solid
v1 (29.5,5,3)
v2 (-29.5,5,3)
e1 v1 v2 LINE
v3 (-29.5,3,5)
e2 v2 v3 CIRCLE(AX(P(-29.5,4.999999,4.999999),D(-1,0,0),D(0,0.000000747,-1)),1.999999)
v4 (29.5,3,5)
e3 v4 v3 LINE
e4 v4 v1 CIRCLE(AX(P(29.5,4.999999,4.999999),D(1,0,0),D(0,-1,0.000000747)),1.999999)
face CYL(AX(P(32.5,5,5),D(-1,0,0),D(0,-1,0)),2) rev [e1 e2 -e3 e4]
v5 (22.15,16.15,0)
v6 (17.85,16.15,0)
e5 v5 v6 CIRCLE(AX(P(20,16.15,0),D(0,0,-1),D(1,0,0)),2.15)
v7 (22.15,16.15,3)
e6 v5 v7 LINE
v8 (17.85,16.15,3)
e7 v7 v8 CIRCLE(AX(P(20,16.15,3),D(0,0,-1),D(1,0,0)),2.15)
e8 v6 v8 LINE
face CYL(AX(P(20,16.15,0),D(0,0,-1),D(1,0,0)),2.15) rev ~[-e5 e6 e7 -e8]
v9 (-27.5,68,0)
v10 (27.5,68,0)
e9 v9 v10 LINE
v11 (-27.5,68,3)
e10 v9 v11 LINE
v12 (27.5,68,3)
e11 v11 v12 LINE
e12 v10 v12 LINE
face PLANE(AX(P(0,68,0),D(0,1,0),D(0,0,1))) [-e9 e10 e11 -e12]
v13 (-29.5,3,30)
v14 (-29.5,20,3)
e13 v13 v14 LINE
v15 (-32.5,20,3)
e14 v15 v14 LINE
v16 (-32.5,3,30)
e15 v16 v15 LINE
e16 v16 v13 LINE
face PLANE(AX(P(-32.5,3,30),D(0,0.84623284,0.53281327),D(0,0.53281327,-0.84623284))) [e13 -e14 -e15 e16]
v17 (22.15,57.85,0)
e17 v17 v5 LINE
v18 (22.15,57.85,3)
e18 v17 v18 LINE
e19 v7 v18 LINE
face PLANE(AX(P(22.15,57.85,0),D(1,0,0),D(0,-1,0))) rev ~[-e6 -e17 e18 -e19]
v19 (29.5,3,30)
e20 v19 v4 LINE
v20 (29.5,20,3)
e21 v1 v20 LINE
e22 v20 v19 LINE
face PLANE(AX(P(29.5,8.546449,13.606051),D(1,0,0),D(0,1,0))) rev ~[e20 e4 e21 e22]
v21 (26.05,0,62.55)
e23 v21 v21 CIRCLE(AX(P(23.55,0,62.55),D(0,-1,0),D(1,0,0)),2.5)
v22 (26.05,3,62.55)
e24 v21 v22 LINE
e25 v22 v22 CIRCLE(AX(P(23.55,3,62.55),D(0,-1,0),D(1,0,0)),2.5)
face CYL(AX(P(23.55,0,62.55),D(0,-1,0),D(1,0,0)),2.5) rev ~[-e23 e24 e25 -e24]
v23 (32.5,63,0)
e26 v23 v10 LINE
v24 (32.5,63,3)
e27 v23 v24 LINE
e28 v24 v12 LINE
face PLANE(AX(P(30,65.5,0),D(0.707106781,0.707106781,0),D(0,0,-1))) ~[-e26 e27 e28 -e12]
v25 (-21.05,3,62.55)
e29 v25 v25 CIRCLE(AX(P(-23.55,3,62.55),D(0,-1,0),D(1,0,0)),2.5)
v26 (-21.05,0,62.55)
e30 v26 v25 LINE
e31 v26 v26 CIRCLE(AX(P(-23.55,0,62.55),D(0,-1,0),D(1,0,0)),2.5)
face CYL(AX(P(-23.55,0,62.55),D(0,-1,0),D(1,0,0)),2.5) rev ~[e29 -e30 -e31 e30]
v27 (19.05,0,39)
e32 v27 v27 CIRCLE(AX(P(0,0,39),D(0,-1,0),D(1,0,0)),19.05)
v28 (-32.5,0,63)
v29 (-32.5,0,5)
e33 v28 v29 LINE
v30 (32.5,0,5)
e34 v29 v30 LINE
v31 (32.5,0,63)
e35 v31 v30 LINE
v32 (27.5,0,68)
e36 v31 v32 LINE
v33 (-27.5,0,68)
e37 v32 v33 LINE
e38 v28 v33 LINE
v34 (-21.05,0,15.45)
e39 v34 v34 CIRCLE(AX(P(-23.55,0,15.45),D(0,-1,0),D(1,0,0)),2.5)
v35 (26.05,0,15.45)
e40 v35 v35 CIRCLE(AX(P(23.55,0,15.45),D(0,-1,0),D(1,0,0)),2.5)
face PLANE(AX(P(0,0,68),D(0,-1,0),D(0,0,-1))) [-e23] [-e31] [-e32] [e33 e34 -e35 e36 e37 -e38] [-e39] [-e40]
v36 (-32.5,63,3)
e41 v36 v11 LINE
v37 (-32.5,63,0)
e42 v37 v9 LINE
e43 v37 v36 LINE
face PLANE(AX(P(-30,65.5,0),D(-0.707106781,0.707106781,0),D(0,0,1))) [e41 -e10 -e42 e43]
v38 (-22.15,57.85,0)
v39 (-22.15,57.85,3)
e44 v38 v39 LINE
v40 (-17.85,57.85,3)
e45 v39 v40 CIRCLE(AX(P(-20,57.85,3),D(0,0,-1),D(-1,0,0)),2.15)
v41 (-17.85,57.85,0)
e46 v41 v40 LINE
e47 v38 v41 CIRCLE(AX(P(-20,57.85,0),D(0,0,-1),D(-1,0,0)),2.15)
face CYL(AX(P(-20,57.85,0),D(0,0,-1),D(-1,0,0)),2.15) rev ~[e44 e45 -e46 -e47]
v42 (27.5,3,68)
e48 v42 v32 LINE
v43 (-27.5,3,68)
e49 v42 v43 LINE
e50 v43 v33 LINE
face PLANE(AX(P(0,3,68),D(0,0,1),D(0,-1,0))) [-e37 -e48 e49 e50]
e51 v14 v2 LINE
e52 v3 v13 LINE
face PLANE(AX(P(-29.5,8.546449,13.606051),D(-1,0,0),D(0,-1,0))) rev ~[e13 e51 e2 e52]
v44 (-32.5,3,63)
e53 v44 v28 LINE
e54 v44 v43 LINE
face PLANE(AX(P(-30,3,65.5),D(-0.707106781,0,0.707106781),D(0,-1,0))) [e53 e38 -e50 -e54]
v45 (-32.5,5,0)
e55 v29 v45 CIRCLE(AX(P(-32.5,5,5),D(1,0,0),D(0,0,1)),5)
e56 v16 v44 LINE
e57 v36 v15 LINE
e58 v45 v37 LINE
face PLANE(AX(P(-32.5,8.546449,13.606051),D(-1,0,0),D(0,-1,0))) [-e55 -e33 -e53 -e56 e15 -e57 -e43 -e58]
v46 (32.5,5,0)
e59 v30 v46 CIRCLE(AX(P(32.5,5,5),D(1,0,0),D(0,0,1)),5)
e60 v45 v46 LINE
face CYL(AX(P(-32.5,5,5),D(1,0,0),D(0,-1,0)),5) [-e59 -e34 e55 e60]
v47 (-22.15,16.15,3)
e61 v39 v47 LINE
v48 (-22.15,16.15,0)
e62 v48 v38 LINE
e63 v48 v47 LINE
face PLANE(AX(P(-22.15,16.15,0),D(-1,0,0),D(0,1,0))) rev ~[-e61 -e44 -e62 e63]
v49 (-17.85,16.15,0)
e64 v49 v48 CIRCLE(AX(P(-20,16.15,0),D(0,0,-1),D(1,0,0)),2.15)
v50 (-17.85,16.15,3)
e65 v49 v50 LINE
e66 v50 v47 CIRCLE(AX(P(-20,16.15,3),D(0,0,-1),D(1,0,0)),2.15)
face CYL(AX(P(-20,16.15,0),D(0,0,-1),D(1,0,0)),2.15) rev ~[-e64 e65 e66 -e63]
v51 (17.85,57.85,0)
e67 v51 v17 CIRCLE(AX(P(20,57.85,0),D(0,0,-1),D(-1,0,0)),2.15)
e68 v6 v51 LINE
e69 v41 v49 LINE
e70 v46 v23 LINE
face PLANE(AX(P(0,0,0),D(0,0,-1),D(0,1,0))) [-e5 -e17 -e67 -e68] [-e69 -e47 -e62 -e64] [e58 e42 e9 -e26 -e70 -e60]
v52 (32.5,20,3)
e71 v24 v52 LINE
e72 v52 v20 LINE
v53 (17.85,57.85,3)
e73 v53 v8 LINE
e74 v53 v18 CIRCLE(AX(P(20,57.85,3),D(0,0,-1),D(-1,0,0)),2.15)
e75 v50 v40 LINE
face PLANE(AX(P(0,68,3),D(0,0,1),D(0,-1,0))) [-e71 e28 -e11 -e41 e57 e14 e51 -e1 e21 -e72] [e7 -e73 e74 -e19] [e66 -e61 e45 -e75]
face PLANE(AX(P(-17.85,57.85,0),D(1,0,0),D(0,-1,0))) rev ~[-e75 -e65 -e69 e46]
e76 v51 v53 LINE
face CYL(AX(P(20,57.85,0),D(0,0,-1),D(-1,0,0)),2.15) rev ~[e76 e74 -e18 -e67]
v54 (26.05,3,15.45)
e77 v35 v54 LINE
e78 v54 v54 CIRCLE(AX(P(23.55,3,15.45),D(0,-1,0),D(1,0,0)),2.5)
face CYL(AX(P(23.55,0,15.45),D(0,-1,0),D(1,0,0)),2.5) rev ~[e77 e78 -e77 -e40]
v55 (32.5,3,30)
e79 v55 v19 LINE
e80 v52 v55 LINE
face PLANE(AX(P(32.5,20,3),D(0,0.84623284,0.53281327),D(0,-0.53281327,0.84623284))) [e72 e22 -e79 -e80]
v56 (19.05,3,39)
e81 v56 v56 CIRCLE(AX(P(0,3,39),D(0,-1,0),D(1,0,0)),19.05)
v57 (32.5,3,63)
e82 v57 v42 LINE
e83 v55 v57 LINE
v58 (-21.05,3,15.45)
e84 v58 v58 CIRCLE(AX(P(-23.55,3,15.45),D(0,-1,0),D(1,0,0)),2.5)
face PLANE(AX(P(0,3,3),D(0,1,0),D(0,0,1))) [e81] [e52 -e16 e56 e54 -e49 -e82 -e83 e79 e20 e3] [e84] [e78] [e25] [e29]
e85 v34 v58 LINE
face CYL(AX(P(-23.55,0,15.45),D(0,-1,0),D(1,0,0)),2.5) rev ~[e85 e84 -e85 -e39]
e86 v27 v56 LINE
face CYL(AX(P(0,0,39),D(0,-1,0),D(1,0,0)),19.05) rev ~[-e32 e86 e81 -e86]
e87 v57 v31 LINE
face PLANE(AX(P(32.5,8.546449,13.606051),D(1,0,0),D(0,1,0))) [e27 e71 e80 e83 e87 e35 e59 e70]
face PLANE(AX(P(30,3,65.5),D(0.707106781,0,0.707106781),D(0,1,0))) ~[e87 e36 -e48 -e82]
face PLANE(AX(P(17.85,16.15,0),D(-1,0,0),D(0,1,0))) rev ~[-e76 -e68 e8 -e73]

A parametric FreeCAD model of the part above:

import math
import FreeCAD as App
import Part
import Sketcher
from FreeCAD import Vector
Q = App.Units.Quantity


def edges_at(feature, points):
    """Names of the edges that pass closest to the given points."""
    edges = feature.Shape.Edges
    near = lambda p: min(range(len(edges)), key=lambda i: edges[i].distToShape(Part.Vertex(*p))[0])
    return sorted({f"Edge{near(p) + 1}" for p in points})


def add_polygon(sketch, points):
    """Adds a closed chain of lines whose ends are joined by coincident constraints."""
    first, n = sketch.GeometryCount, len(points)
    for a, b in zip(points, points[1:] + points[:1]):
        sketch.addGeometry(Part.LineSegment(App.Vector(*a, 0), App.Vector(*b, 0)), False)
    for i in range(n):
        sketch.addConstraint(Sketcher.Constraint("Coincident", first + i, 2, first + (i + 1) % n, 1))

doc = App.newDocument("Part")
body = doc.addObject("PartDesign::Body", "Body")

sketch1 = body.newObject("Sketcher::SketchObject", "Sketch")
sketch1.AttachmentSupport = (doc.getObject("YZ_Plane"), [""])
sketch1.MapMode = "FlatFace"
add_polygon(sketch1, [(0, 68), (0, 0), (68, 0), (68, 3), (3, 3), (3, 68)])
sketch1.addConstraint([
    Sketcher.Constraint("Vertical", 0),
    Sketcher.Constraint("Horizontal", 1),
    Sketcher.Constraint("Vertical", 2),
    Sketcher.Constraint("Horizontal", 3),
    Sketcher.Constraint("Vertical", 4),
    Sketcher.Constraint("Horizontal", 5),
    Sketcher.Constraint("Coincident", 0, 2, -1, 1),
    Sketcher.Constraint("Equal", 1, 0),
    Sketcher.Constraint("Equal", 5, 2),
    Sketcher.Constraint("DistanceX", 1, 1, 1, 2, Q("68 mm")),
    Sketcher.Constraint("DistanceX", 3, 2, 3, 1, Q("65 mm")),
])
pad1 = body.newObject("PartDesign::Pad", "Pad")
pad1.Profile = sketch1
pad1.Length = 65
pad1.Midplane = True
doc.recompute()

fillet = body.newObject("PartDesign::Fillet", "Fillet")
fillet.Base = (pad1, edges_at(pad1, [(0, 0, 0)]))
fillet.Radius = 5
doc.recompute()

fillet2 = body.newObject("PartDesign::Fillet", "Fillet001")
fillet2.Base = (fillet, edges_at(fillet, [(0, 3, 3)]))
fillet2.Radius = 2

sketch2 = body.newObject("Sketcher::SketchObject", "Sketch001")
sketch2.AttachmentSupport = (doc.getObject("XZ_Plane"), [""])
sketch2.MapMode = "FlatFace"
sketch2.addGeometry([
    Part.Circle(Vector(0, 39, 0), Vector(0, 0, 1), 19.05),
    Part.Circle(Vector(-23.55, 15.45, 0), Vector(0, 0, 1), 2.5),
    Part.Circle(Vector(23.55, 15.45, 0), Vector(0, 0, 1), 2.5),
    Part.Circle(Vector(23.55, 62.55, 0), Vector(0, 0, 1), 2.5),
    Part.Circle(Vector(-23.55, 62.55, 0), Vector(0, 0, 1), 2.5),
], False)
sketch2.addConstraint([
    Sketcher.Constraint("Equal", 1, 2),
    Sketcher.Constraint("Equal", 2, 3),
    Sketcher.Constraint("Equal", 3, 4),
    Sketcher.Constraint("Symmetric", 1, 3, 2, 3, -2),
    Sketcher.Constraint("Symmetric", 3, 3, 4, 3, -2),
    Sketcher.Constraint("PointOnObject", 0, 3, -2),
    Sketcher.Constraint("Vertical", 2, 3, 3, 3),
    Sketcher.Constraint("Diameter", 1, Q("5 mm")),
    Sketcher.Constraint("Diameter", 0, Q("38.1 mm")),
    Sketcher.Constraint("DistanceY", -1, 1, 0, 3, Q("39 mm")),
    Sketcher.Constraint("DistanceX", 1, 3, 2, 3, Q("47.1 mm")),
    Sketcher.Constraint("DistanceY", 2, 3, 3, 3, Q("47.1 mm")),
    Sketcher.Constraint("DistanceY", -1, 1, 1, 3, Q("15.45 mm")),
])
pocket1 = body.newObject("PartDesign::Pocket", "Pocket")
pocket1.Profile = sketch2
pocket1.Type = "ThroughAll"

sketch3 = body.newObject("Sketcher::SketchObject", "Sketch002")
sketch3.AttachmentSupport = (doc.getObject("XY_Plane"), [""])
sketch3.MapMode = "FlatFace"
sketch3.addGeometry([
    Part.ArcOfCircle(Part.Circle(Vector(-20, 57.85, 0), Vector(0, 0, 1), 2.15), math.radians(0), math.radians(180)),
    Part.LineSegment(Vector(-17.85, 57.85, 0), Vector(-17.85, 16.15, 0)),
    Part.ArcOfCircle(Part.Circle(Vector(-20, 16.15, 0), Vector(0, 0, 1), 2.15), math.radians(180), math.radians(360)),
    Part.LineSegment(Vector(-22.15, 16.15, 0), Vector(-22.15, 57.85, 0)),
    Part.ArcOfCircle(Part.Circle(Vector(20, 57.85, 0), Vector(0, 0, 1), 2.15), math.radians(0), math.radians(180)),
    Part.LineSegment(Vector(22.15, 57.85, 0), Vector(22.15, 16.15, 0)),
    Part.ArcOfCircle(Part.Circle(Vector(20, 16.15, 0), Vector(0, 0, 1), 2.15), math.radians(180), math.radians(360)),
    Part.LineSegment(Vector(17.85, 16.15, 0), Vector(17.85, 57.85, 0)),
], False)
sketch3.addConstraint([
    Sketcher.Constraint("Tangent", 0, 1, 1, 1),
    Sketcher.Constraint("Tangent", 1, 2, 2, 2),
    Sketcher.Constraint("Tangent", 2, 1, 3, 1),
    Sketcher.Constraint("Tangent", 3, 2, 0, 2),
    Sketcher.Constraint("Tangent", 4, 1, 5, 1),
    Sketcher.Constraint("Tangent", 5, 2, 6, 2),
    Sketcher.Constraint("Tangent", 6, 1, 7, 1),
    Sketcher.Constraint("Tangent", 7, 2, 4, 2),
    Sketcher.Constraint("Vertical", 1),
    Sketcher.Constraint("Vertical", 3),
    Sketcher.Constraint("Vertical", 5),
    Sketcher.Constraint("Vertical", 7),
    Sketcher.Constraint("Equal", 2, 4),
    Sketcher.Constraint("Symmetric", 0, 3, 4, 3, -2),
    Sketcher.Constraint("Horizontal", 2, 3, 6, 3),
    Sketcher.Constraint("Radius", 0, Q("2.15 mm")),
    Sketcher.Constraint("DistanceY", 1, 2, 1, 1, Q("41.7 mm")),
    Sketcher.Constraint("DistanceX", 0, 3, -1, 1, Q("20 mm")),
    Sketcher.Constraint("DistanceY", -1, 1, 0, 3, Q("57.85 mm")),
])
pocket2 = body.newObject("PartDesign::Pocket", "Pocket001")
pocket2.Profile = sketch3
pocket2.Type = "ThroughAll"
pocket2.Reversed = True

sketch4 = body.newObject("Sketcher::SketchObject", "Sketch003")
sketch4.AttachmentSupport = (doc.getObject("YZ_Plane"), [""])
sketch4.MapMode = "FlatFace"
sketch4.AttachmentOffset = App.Placement(Vector(0, 0, 32.5), App.Rotation())
sketch4.addGeometry([
    Part.LineSegment(Vector(3, 30, 0), Vector(3, 5, 0)),
    Part.ArcOfCircle(Part.Circle(Vector(4.999999, 4.999999, 0), Vector(0, 0, 1), 1.999999), math.radians(179.999957), math.radians(270.000043)),
    Part.LineSegment(Vector(5, 3, 0), Vector(20, 3, 0)),
    Part.LineSegment(Vector(20, 3, 0), Vector(3, 30, 0)),
], False)
sketch4.addConstraint([
    Sketcher.Constraint("Tangent", 0, 2, 1, 1),
    Sketcher.Constraint("Tangent", 1, 2, 2, 1),
    Sketcher.Constraint("Coincident", 2, 2, 3, 1),
    Sketcher.Constraint("Coincident", 3, 2, 0, 1),
    Sketcher.Constraint("Vertical", 0),
    Sketcher.Constraint("Horizontal", 2),
    Sketcher.Constraint("Radius", 1, Q("1.999999 mm")),
    Sketcher.Constraint("DistanceX", 2, 1, 2, 2, Q("15 mm")),
    Sketcher.Constraint("DistanceY", 0, 2, 0, 1, Q("25 mm")),
    Sketcher.Constraint("DistanceX", -1, 1, 1, 3, Q("4.999999 mm")),
    Sketcher.Constraint("DistanceY", -1, 1, 1, 3, Q("4.999999 mm")),
])
pad2 = body.newObject("PartDesign::Pad", "Pad001")
pad2.Profile = sketch4
pad2.Length = 3
pad2.Reversed = True

sketch5 = body.newObject("Sketcher::SketchObject", "Sketch004")
sketch5.AttachmentSupport = (doc.getObject("YZ_Plane"), [""])
sketch5.MapMode = "FlatFace"
sketch5.AttachmentOffset = App.Placement(Vector(0, 0, -32.5), App.Rotation())
sketch5.addGeometry([
    Part.LineSegment(Vector(3, 5, 0), Vector(3, 30, 0)),
    Part.LineSegment(Vector(3, 30, 0), Vector(20, 3, 0)),
    Part.LineSegment(Vector(20, 3, 0), Vector(5, 3, 0)),
    Part.ArcOfCircle(Part.Circle(Vector(4.999999, 4.999999, 0), Vector(0, 0, 1), 1.999999), math.radians(179.999957), math.radians(270.000043)),
], False)
sketch5.addConstraint([
    Sketcher.Constraint("Coincident", 0, 2, 1, 1),
    Sketcher.Constraint("Coincident", 1, 2, 2, 1),
    Sketcher.Constraint("Tangent", 2, 2, 3, 2),
    Sketcher.Constraint("Tangent", 3, 1, 0, 1),
    Sketcher.Constraint("Vertical", 0),
    Sketcher.Constraint("Horizontal", 2),
    Sketcher.Constraint("Radius", 3, Q("1.999999 mm")),
    Sketcher.Constraint("DistanceX", 2, 2, 2, 1, Q("15 mm")),
    Sketcher.Constraint("DistanceY", 0, 1, 0, 2, Q("25 mm")),
    Sketcher.Constraint("DistanceX", -1, 1, 3, 3, Q("4.999999 mm")),
    Sketcher.Constraint("DistanceY", -1, 1, 3, 3, Q("4.999999 mm")),
])
pad3 = body.newObject("PartDesign::Pad", "Pad002")
pad3.Profile = sketch5
pad3.Length = 3
doc.recompute()

chamfer = body.newObject("PartDesign::Chamfer", "Chamfer")
chamfer.Base = (pad3, edges_at(pad3, [
    (32.5, 1.5, 68),
    (32.5, 68, 1.5),
    (-32.5, 68, 1.5),
    (-32.5, 1.5, 68),
]))
chamfer.Size = 5

doc.recompute()
